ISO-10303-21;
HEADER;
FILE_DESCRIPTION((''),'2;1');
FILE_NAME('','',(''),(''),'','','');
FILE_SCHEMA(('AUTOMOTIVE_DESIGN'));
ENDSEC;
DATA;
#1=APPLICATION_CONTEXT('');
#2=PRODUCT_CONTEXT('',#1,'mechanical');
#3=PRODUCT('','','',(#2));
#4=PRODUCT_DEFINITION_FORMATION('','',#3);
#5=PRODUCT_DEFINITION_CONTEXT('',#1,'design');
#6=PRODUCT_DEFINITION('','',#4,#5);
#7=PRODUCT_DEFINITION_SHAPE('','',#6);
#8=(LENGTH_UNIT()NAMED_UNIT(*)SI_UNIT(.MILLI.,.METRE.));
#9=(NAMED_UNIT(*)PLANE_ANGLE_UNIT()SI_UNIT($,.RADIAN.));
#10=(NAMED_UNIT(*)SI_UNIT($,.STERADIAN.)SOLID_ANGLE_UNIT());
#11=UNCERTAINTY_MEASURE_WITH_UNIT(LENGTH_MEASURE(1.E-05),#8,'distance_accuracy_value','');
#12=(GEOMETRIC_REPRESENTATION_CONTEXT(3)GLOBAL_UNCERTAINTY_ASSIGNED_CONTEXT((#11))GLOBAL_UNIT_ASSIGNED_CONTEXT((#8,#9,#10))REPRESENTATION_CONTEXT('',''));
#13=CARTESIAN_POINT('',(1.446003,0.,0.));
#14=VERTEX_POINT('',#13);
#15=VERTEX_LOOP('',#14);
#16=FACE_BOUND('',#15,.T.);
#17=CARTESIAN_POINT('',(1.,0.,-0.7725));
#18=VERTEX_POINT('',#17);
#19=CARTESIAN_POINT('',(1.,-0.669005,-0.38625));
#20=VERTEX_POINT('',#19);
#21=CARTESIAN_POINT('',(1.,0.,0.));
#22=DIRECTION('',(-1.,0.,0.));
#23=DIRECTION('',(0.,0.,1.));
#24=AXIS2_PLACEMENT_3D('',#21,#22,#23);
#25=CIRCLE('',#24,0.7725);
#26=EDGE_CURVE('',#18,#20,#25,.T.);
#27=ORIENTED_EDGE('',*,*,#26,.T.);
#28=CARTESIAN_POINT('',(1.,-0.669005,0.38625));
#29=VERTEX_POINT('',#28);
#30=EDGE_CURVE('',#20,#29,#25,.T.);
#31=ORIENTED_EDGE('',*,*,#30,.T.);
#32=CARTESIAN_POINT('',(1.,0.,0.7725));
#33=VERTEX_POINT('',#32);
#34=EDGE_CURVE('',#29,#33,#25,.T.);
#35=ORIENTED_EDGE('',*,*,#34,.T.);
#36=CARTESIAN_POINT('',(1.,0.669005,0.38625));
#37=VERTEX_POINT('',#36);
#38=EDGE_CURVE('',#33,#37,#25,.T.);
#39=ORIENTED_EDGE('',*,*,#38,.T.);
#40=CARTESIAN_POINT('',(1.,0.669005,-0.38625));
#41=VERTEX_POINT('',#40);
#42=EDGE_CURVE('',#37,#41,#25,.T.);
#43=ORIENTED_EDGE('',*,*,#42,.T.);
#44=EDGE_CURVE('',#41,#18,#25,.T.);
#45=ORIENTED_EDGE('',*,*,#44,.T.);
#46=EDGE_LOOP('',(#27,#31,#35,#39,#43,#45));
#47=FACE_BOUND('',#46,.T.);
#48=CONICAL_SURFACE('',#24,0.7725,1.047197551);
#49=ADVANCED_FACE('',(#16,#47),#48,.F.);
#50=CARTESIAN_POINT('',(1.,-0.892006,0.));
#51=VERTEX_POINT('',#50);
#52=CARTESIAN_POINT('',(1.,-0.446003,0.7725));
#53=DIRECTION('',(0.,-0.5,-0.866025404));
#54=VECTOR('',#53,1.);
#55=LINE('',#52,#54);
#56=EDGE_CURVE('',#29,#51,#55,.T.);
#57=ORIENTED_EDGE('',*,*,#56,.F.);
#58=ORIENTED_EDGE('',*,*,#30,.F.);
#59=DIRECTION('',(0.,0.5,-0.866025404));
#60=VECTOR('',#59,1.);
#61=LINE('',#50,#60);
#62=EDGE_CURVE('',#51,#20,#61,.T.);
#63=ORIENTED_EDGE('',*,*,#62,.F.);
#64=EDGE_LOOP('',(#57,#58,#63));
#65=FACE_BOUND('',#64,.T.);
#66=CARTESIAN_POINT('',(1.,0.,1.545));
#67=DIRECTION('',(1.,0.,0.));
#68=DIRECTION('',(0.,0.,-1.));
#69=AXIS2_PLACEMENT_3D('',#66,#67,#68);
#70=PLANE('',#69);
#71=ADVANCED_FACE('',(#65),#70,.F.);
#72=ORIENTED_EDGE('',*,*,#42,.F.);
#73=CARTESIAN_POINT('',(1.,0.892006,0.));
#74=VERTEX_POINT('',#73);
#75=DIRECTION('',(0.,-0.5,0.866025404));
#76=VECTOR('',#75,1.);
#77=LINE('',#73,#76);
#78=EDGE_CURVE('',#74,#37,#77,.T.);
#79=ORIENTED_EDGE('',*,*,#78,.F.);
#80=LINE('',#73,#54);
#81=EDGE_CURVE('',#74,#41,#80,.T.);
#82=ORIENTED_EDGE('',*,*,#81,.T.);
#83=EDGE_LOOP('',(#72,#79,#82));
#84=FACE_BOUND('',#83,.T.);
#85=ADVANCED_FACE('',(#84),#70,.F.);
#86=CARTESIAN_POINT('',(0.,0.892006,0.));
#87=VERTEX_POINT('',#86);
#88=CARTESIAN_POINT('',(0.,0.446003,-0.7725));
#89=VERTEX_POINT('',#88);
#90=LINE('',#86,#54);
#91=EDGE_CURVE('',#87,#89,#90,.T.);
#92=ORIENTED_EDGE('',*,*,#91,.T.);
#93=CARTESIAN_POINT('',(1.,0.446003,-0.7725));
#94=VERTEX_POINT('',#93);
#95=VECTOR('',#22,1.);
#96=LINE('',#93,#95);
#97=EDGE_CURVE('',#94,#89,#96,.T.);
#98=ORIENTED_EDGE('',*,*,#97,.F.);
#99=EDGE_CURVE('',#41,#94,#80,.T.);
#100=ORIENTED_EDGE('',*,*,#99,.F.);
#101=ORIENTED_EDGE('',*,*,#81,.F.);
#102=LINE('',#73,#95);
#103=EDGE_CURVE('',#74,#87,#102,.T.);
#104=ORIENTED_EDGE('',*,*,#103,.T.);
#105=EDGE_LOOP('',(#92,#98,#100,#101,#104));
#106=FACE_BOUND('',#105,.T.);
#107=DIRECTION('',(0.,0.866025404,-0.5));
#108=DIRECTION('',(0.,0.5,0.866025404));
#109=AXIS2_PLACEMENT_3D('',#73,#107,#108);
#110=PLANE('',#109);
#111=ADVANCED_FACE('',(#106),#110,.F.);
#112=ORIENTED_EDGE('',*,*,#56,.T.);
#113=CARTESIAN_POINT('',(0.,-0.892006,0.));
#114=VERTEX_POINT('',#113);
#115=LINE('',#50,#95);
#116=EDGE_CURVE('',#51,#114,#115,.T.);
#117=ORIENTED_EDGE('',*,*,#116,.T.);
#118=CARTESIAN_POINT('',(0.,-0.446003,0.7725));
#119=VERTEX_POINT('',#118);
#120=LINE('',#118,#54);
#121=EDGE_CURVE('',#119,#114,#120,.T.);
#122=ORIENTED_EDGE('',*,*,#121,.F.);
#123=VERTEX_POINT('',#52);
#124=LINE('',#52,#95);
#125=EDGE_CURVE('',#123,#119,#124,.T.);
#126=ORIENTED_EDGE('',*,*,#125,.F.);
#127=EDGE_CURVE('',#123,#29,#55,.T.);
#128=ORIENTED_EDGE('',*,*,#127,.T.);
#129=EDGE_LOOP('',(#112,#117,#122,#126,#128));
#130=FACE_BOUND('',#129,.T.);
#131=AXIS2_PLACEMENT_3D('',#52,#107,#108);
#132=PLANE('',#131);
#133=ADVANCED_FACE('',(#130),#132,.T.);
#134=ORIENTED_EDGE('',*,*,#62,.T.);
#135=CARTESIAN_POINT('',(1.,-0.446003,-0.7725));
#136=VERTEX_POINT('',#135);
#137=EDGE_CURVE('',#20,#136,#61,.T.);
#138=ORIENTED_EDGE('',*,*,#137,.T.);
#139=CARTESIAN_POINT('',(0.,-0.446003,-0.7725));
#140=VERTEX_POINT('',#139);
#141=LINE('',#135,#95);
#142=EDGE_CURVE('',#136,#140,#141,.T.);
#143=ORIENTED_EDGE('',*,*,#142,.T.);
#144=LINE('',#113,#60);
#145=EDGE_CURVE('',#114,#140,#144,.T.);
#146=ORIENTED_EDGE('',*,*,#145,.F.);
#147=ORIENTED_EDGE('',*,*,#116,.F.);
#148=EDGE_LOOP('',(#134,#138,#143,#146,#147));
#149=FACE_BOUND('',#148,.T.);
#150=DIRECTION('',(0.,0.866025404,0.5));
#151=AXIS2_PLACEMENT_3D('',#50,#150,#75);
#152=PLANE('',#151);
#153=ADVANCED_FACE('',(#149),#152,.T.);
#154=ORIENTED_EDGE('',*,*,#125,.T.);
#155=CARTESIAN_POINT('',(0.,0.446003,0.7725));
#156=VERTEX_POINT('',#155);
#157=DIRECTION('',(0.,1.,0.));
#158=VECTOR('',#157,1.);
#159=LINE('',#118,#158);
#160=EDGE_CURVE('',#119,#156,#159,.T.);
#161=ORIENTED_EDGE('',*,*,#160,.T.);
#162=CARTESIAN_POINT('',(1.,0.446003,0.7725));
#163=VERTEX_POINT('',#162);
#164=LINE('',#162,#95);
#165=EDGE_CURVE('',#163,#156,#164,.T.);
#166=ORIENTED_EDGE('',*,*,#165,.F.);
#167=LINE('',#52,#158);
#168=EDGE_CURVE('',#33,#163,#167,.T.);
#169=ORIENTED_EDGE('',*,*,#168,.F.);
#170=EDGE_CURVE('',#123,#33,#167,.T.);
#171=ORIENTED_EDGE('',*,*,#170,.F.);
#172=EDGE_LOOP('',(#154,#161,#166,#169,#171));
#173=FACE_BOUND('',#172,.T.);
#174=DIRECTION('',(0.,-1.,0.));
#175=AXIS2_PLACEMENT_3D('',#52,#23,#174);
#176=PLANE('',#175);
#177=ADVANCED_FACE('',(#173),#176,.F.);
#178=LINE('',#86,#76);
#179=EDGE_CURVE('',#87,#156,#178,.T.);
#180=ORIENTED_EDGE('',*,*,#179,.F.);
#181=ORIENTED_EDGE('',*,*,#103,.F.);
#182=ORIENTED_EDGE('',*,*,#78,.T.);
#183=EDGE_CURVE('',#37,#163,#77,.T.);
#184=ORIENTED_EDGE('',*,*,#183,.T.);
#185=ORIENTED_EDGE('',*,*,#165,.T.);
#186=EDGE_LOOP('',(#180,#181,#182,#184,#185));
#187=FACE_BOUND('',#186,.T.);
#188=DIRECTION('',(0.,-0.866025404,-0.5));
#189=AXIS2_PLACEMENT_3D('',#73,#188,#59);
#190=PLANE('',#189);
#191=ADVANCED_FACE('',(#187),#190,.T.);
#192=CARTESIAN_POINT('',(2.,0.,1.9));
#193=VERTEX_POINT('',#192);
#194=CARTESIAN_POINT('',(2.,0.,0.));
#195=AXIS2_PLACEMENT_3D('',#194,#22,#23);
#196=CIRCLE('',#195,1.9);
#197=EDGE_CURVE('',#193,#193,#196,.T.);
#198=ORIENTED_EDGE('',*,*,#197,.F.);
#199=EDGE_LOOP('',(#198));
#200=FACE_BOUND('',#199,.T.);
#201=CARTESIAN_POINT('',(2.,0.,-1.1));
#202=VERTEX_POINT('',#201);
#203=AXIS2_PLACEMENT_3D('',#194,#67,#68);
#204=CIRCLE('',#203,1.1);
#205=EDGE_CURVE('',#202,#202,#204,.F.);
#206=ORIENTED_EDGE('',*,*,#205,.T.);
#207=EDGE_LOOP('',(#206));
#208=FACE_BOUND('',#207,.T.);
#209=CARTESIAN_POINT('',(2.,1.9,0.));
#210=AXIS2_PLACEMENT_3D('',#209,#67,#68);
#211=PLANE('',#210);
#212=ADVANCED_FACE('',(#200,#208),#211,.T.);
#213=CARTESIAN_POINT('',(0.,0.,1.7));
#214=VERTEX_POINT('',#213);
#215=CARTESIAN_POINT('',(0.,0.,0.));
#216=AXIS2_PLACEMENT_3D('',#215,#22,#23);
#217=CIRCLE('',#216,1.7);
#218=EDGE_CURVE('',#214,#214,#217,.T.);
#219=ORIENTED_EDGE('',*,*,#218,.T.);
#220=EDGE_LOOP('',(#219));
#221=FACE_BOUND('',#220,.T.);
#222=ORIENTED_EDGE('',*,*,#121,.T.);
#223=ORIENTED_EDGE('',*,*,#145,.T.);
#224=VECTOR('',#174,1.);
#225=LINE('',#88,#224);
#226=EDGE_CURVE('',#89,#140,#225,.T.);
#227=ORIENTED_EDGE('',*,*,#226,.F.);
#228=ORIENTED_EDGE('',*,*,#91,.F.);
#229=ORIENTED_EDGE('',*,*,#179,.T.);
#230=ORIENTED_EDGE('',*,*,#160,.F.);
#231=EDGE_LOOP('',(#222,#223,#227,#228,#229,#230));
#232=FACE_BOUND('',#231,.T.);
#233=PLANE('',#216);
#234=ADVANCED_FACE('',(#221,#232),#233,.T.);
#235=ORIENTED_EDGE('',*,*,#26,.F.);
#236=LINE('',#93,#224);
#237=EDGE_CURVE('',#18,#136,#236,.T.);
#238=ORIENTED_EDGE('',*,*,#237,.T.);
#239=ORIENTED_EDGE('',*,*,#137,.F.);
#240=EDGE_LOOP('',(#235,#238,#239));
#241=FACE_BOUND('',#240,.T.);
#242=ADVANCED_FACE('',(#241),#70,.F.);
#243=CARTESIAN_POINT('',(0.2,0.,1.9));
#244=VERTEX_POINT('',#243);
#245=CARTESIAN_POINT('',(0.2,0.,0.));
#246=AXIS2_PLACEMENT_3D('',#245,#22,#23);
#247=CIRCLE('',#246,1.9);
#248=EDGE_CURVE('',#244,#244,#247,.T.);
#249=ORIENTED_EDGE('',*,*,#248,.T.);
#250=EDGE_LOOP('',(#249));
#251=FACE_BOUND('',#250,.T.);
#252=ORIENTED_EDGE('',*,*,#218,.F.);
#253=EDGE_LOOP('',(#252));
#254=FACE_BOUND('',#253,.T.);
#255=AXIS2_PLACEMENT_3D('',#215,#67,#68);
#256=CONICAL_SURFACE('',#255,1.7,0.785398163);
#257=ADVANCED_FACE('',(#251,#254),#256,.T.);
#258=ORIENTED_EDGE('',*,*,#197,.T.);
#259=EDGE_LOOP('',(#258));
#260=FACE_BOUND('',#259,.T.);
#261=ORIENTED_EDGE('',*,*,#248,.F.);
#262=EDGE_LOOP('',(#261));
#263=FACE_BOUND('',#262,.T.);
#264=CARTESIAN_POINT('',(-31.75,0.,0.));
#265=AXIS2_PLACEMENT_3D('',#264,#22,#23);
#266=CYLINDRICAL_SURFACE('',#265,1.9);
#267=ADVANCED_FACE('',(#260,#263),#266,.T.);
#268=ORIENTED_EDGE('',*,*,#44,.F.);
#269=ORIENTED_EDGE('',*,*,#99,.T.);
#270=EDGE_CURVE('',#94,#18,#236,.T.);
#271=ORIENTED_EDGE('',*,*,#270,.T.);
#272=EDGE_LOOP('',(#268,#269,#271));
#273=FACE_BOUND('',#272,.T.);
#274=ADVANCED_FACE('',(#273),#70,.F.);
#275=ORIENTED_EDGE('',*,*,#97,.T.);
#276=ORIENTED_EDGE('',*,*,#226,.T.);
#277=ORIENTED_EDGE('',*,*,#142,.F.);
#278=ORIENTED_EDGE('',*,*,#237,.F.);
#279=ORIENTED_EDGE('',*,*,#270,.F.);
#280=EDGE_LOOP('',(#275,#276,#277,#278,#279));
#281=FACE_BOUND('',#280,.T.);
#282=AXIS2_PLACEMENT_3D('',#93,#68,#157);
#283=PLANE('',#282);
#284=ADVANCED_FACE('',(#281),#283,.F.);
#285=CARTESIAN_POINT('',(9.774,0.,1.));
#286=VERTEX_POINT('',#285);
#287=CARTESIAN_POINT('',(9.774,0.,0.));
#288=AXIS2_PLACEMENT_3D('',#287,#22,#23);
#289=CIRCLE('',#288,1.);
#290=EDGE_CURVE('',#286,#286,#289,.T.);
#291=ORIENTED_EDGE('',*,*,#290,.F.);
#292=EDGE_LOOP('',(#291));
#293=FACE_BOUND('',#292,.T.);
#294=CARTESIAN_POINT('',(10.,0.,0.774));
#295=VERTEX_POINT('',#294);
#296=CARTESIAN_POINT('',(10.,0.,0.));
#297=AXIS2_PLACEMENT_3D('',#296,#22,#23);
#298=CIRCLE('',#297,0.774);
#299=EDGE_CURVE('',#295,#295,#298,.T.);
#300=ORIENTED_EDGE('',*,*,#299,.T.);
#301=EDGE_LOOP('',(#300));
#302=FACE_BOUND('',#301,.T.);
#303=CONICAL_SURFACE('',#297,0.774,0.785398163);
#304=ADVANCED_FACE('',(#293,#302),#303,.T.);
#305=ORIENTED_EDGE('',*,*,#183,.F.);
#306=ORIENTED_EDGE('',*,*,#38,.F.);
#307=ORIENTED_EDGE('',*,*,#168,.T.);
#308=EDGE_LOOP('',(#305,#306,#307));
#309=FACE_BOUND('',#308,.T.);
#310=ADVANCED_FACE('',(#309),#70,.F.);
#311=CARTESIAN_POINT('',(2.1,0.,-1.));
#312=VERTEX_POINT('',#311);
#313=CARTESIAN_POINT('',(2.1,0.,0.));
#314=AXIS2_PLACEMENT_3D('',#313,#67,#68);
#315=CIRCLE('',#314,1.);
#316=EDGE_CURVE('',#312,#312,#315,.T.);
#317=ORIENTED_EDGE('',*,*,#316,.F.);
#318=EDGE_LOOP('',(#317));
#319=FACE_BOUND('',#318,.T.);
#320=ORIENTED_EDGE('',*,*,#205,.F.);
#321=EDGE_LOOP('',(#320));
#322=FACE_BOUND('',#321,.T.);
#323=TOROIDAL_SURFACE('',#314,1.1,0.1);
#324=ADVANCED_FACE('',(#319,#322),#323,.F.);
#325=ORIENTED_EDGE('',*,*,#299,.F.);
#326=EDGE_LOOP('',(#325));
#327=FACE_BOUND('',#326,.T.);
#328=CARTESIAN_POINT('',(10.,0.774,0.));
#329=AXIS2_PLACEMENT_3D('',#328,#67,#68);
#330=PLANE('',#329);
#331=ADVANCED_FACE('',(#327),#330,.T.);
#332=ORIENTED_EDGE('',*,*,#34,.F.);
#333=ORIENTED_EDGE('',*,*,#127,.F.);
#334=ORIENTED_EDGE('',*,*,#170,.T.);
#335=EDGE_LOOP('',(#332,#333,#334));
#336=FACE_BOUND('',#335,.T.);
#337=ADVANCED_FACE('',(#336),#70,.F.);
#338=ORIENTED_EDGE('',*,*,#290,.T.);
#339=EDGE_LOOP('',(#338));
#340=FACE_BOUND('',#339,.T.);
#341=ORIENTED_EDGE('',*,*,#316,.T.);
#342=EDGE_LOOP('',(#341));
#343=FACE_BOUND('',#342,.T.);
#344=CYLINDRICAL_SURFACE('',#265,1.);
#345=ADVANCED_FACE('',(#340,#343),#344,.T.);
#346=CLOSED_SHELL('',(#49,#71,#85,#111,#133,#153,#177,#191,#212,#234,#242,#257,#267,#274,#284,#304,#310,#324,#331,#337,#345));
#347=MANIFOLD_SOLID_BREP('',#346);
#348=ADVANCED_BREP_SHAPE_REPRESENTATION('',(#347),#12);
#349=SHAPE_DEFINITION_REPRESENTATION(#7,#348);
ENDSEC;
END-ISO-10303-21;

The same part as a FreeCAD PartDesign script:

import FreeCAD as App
import Part
import Sketcher
Q = App.Units.Quantity


def edges_at(feature, points):
    """Names of the edges that pass closest to the given points."""
    edges = feature.Shape.Edges
    near = lambda p: min(range(len(edges)), key=lambda i: edges[i].distToShape(Part.Vertex(*p))[0])
    return sorted({f"Edge{near(p) + 1}" for p in points})

doc = App.newDocument("Part")
body = doc.addObject("PartDesign::Body", "Body")

sketch1 = doc.addObject("Sketcher::SketchObject", "Sketch")
body.addObject(sketch1)
sketch1.AttachmentSupport = (doc.XY_Plane, [""])
sketch1.MapMode = "FlatFace"
sketch1.addGeometry([
    Part.LineSegment(App.Vector(0, 1.7, 0), App.Vector(0, 0, 0)),
    Part.LineSegment(App.Vector(0, 0, 0), App.Vector(10, 0, 0)),
    Part.LineSegment(App.Vector(10, 0, 0), App.Vector(10, 0.774, 0)),
    Part.LineSegment(App.Vector(10, 0.774, 0), App.Vector(9.774, 1, 0)),
    Part.LineSegment(App.Vector(9.774, 1, 0), App.Vector(2, 1, 0)),
    Part.LineSegment(App.Vector(2, 1, 0), App.Vector(2, 1.9, 0)),
    Part.LineSegment(App.Vector(2, 1.9, 0), App.Vector(0.2, 1.9, 0)),
    Part.LineSegment(App.Vector(0.2, 1.9, 0), App.Vector(0, 1.7, 0)),
], False)
sketch1.addConstraint([
    Sketcher.Constraint("Coincident", 0, 2, 1, 1),
    Sketcher.Constraint("Coincident", 1, 2, 2, 1),
    Sketcher.Constraint("Coincident", 2, 2, 3, 1),
    Sketcher.Constraint("Coincident", 3, 2, 4, 1),
    Sketcher.Constraint("Coincident", 4, 2, 5, 1),
    Sketcher.Constraint("Coincident", 5, 2, 6, 1),
    Sketcher.Constraint("Coincident", 6, 2, 7, 1),
    Sketcher.Constraint("Coincident", 7, 2, 0, 1),
    Sketcher.Constraint("Vertical", 0),
    Sketcher.Constraint("Horizontal", 1),
    Sketcher.Constraint("Vertical", 2),
    Sketcher.Constraint("Horizontal", 4),
    Sketcher.Constraint("Vertical", 5),
    Sketcher.Constraint("Horizontal", 6),
    Sketcher.Constraint("Coincident", 0, 2, -1, 1),
    Sketcher.Constraint("Perpendicular", 3, 7),
    Sketcher.Constraint("DistanceX", 1, 1, 1, 2, Q("10 mm")),
    Sketcher.Constraint("Angle", 3, Q("135 deg")),
    Sketcher.Constraint("DistanceX", 6, 2, 6, 1, Q("1.8 mm")),
    Sketcher.Constraint("DistanceY", 0, 2, 0, 1, Q("1.7 mm")),
    Sketcher.Constraint("DistanceY", 5, 1, 5, 2, Q("0.9 mm")),
    Sketcher.Constraint("DistanceY", -1, 1, 3, 2, Q("1 mm")),
    Sketcher.Constraint("DistanceX", 4, 2, 4, 1, Q("7.774 mm")),
])
revolution = doc.addObject("PartDesign::Revolution", "Revolution")
body.addObject(revolution)
revolution.Profile = sketch1
revolution.ReferenceAxis = (sketch1, ["H_Axis"])
revolution.Angle = 360
doc.recompute()

fillet = doc.addObject("PartDesign::Fillet", "Fillet")
body.addObject(fillet)
fillet.Base = (revolution, edges_at(revolution, [(2, 0, -1)]))
fillet.Radius = 0.1

sketch2 = doc.addObject("Sketcher::SketchObject", "Sketch001")
body.addObject(sketch2)
sketch2.AttachmentSupport = (doc.XY_Plane, [""])
sketch2.MapMode = "FlatFace"
sketch2.addGeometry([
    Part.LineSegment(App.Vector(1, 0.7725, 0), App.Vector(0, 0.7725, 0)),
    Part.LineSegment(App.Vector(0, 0.7725, 0), App.Vector(0, 0, 0)),
    Part.LineSegment(App.Vector(0, 0, 0), App.Vector(1.446003, 0, 0)),
    Part.LineSegment(App.Vector(1.446003, 0, 0), App.Vector(1, 0.7725, 0)),
], False)
sketch2.addConstraint([
    Sketcher.Constraint("Coincident", 0, 2, 1, 1),
    Sketcher.Constraint("Coincident", 1, 2, 2, 1),
    Sketcher.Constraint("Coincident", 2, 2, 3, 1),
    Sketcher.Constraint("Coincident", 3, 2, 0, 1),
    Sketcher.Constraint("Horizontal", 0),
    Sketcher.Constraint("Vertical", 1),
    Sketcher.Constraint("Horizontal", 2),
    Sketcher.Constraint("Coincident", 1, 2, -1, 1),
    Sketcher.Constraint("DistanceX", 0, 2, 0, 1, Q("1 mm")),
    Sketcher.Constraint("Angle", 3, Q("120 deg")),
    Sketcher.Constraint("DistanceY", 1, 2, 1, 1, Q("0.7725 mm")),
])
groove = doc.addObject("PartDesign::Groove", "Groove")
body.addObject(groove)
groove.Profile = sketch2
groove.ReferenceAxis = (sketch2, ["H_Axis"])
groove.Angle = 360

sketch3 = doc.addObject("Sketcher::SketchObject", "Sketch002")
body.addObject(sketch3)
sketch3.AttachmentSupport = (doc.YZ_Plane, [""])
sketch3.MapMode = "FlatFace"
sketch3.addGeometry([
    Part.LineSegment(App.Vector(0.892006, 0, 0), App.Vector(0.446003, -0.7725, 0)),
    Part.LineSegment(App.Vector(0.446003, -0.7725, 0), App.Vector(-0.446003, -0.7725, 0)),
    Part.LineSegment(App.Vector(-0.446003, -0.7725, 0), App.Vector(-0.892006, 0, 0)),
    Part.LineSegment(App.Vector(-0.892006, 0, 0), App.Vector(-0.446003, 0.7725, 0)),
    Part.LineSegment(App.Vector(-0.446003, 0.7725, 0), App.Vector(0.446003, 0.7725, 0)),
    Part.LineSegment(App.Vector(0.446003, 0.7725, 0), App.Vector(0.892006, 0, 0)),
], False)
sketch3.addConstraint([
    Sketcher.Constraint("Coincident", 0, 2, 1, 1),
    Sketcher.Constraint("Coincident", 1, 2, 2, 1),
    Sketcher.Constraint("Coincident", 2, 2, 3, 1),
    Sketcher.Constraint("Coincident", 3, 2, 4, 1),
    Sketcher.Constraint("Coincident", 4, 2, 5, 1),
    Sketcher.Constraint("Coincident", 5, 2, 0, 1),
    Sketcher.Constraint("Horizontal", 1),
    Sketcher.Constraint("Horizontal", 4),
    Sketcher.Constraint("Symmetric", 0, 2, 3, 2, -1, 1),
    Sketcher.Constraint("Symmetric", 2, 2, 5, 2, -1, 1),
    Sketcher.Constraint("PointOnObject", 2, 2, -1),
    Sketcher.Constraint("Parallel", 2, 5),
    Sketcher.Constraint("Vertical", 1, 2, 3, 2),
    Sketcher.Constraint("Angle", 0, Q("-120 deg")),
    Sketcher.Constraint("DistanceY", 1, 2, 3, 2, Q("1.545 mm")),
    Sketcher.Constraint("DistanceX", 1, 2, 1, 1, Q("0.892006 mm")),
])
pocket1 = doc.addObject("PartDesign::Pocket", "Pocket")
body.addObject(pocket1)
pocket1.Profile = sketch3
pocket1.Length = 1
pocket1.Reversed = True

doc.recompute()
